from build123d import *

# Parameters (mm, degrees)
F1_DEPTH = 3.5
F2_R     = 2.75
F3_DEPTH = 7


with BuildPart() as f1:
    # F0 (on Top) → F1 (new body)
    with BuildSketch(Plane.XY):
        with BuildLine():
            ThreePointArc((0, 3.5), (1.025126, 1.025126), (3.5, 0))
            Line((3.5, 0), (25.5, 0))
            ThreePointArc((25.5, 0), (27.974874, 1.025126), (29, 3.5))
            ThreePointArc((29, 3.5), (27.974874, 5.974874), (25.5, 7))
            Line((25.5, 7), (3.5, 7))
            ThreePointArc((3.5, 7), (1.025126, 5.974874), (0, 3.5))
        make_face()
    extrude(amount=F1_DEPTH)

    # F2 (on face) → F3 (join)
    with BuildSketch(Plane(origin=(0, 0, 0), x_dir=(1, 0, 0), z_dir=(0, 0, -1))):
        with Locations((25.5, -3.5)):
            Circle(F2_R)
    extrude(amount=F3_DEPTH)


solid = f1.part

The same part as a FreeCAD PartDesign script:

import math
import FreeCAD as App
import Part
import Sketcher

V = App.Vector
Q = App.Units.Quantity

doc = App.newDocument("Part")
body = doc.addObject("PartDesign::Body", "Body")

# Sketch on XY plane
sketch1 = body.newObject("Sketcher::SketchObject", "Sketch")
sketch1.AttachmentSupport = (doc.getObject("XY_Plane"), [""])
sketch1.MapMode = "FlatFace"
sketch1.addGeometry([
    Part.ArcOfCircle(Part.Circle(V(3.5, 3.5, 0), V(0, 0, 1), 3.5), math.radians(180), math.radians(270)),  # 0
    Part.LineSegment(V(3.5, 0, 0), V(25.5, 0, 0)),  # 1
    Part.ArcOfCircle(Part.Circle(V(25.5, 3.5, 0), V(0, 0, 1), 3.5), math.radians(-90), math.radians(0)),  # 2
    Part.ArcOfCircle(Part.Circle(V(25.5, 3.5, 0), V(0, 0, 1), 3.5), math.radians(0), math.radians(90)),  # 3
    Part.LineSegment(V(25.5, 7, 0), V(3.5, 7, 0)),  # 4
    Part.ArcOfCircle(Part.Circle(V(3.5, 3.5, 0), V(0, 0, 1), 3.5), math.radians(90), math.radians(180)),  # 5
], False)
sketch1.addConstraint([
    Sketcher.Constraint("Tangent", 0, 2, 1, 1),
    Sketcher.Constraint("Tangent", 1, 2, 2, 1),
    Sketcher.Constraint("Tangent", 2, 2, 3, 1),
    Sketcher.Constraint("Tangent", 3, 2, 4, 1),
    Sketcher.Constraint("Tangent", 4, 2, 5, 1),
    Sketcher.Constraint("Tangent", 5, 2, 0, 1),
    Sketcher.Constraint("Horizontal", 1),
    Sketcher.Constraint("Horizontal", 4),
    Sketcher.Constraint("Equal", 0, 2),
    Sketcher.Constraint("Equal", 2, 3),
    Sketcher.Constraint("PointOnObject", 0, 2, -1),
    Sketcher.Constraint("PointOnObject", 5, 2, -2),
    Sketcher.Constraint("Horizontal", 5, 3, 2, 2),
    Sketcher.Constraint("Horizontal", 2, 2, 5, 2),
    Sketcher.Constraint("Radius", 0, Q("3.499999 mm")),
    Sketcher.Constraint("DistanceX", 1, 1, 1, 2, Q("22 mm")),
])
pad1 = body.newObject("PartDesign::Pad", "Pad")
pad1.Profile = sketch1
pad1.Length = 3.5

# Sketch on XY plane
sketch2 = body.newObject("Sketcher::SketchObject", "Sketch001")
sketch2.AttachmentSupport = (doc.getObject("XY_Plane"), [""])
sketch2.MapMode = "FlatFace"
sketch2.addGeometry(Part.Circle(V(25.5, 3.5, 0), V(0, 0, 1), 2.8), False)
sketch2.addConstraint([
    Sketcher.Constraint("Diameter", 0, Q("5.5 mm")),
    Sketcher.Constraint("DistanceX", -1, 1, 0, 3, Q("25.5 mm")),
    Sketcher.Constraint("DistanceY", -1, 1, 0, 3, Q("3.5 mm")),
])
pad2 = body.newObject("PartDesign::Pad", "Pad001")
pad2.Profile = sketch2
pad2.Length = 7
pad2.Reversed = True

doc.recompute()
